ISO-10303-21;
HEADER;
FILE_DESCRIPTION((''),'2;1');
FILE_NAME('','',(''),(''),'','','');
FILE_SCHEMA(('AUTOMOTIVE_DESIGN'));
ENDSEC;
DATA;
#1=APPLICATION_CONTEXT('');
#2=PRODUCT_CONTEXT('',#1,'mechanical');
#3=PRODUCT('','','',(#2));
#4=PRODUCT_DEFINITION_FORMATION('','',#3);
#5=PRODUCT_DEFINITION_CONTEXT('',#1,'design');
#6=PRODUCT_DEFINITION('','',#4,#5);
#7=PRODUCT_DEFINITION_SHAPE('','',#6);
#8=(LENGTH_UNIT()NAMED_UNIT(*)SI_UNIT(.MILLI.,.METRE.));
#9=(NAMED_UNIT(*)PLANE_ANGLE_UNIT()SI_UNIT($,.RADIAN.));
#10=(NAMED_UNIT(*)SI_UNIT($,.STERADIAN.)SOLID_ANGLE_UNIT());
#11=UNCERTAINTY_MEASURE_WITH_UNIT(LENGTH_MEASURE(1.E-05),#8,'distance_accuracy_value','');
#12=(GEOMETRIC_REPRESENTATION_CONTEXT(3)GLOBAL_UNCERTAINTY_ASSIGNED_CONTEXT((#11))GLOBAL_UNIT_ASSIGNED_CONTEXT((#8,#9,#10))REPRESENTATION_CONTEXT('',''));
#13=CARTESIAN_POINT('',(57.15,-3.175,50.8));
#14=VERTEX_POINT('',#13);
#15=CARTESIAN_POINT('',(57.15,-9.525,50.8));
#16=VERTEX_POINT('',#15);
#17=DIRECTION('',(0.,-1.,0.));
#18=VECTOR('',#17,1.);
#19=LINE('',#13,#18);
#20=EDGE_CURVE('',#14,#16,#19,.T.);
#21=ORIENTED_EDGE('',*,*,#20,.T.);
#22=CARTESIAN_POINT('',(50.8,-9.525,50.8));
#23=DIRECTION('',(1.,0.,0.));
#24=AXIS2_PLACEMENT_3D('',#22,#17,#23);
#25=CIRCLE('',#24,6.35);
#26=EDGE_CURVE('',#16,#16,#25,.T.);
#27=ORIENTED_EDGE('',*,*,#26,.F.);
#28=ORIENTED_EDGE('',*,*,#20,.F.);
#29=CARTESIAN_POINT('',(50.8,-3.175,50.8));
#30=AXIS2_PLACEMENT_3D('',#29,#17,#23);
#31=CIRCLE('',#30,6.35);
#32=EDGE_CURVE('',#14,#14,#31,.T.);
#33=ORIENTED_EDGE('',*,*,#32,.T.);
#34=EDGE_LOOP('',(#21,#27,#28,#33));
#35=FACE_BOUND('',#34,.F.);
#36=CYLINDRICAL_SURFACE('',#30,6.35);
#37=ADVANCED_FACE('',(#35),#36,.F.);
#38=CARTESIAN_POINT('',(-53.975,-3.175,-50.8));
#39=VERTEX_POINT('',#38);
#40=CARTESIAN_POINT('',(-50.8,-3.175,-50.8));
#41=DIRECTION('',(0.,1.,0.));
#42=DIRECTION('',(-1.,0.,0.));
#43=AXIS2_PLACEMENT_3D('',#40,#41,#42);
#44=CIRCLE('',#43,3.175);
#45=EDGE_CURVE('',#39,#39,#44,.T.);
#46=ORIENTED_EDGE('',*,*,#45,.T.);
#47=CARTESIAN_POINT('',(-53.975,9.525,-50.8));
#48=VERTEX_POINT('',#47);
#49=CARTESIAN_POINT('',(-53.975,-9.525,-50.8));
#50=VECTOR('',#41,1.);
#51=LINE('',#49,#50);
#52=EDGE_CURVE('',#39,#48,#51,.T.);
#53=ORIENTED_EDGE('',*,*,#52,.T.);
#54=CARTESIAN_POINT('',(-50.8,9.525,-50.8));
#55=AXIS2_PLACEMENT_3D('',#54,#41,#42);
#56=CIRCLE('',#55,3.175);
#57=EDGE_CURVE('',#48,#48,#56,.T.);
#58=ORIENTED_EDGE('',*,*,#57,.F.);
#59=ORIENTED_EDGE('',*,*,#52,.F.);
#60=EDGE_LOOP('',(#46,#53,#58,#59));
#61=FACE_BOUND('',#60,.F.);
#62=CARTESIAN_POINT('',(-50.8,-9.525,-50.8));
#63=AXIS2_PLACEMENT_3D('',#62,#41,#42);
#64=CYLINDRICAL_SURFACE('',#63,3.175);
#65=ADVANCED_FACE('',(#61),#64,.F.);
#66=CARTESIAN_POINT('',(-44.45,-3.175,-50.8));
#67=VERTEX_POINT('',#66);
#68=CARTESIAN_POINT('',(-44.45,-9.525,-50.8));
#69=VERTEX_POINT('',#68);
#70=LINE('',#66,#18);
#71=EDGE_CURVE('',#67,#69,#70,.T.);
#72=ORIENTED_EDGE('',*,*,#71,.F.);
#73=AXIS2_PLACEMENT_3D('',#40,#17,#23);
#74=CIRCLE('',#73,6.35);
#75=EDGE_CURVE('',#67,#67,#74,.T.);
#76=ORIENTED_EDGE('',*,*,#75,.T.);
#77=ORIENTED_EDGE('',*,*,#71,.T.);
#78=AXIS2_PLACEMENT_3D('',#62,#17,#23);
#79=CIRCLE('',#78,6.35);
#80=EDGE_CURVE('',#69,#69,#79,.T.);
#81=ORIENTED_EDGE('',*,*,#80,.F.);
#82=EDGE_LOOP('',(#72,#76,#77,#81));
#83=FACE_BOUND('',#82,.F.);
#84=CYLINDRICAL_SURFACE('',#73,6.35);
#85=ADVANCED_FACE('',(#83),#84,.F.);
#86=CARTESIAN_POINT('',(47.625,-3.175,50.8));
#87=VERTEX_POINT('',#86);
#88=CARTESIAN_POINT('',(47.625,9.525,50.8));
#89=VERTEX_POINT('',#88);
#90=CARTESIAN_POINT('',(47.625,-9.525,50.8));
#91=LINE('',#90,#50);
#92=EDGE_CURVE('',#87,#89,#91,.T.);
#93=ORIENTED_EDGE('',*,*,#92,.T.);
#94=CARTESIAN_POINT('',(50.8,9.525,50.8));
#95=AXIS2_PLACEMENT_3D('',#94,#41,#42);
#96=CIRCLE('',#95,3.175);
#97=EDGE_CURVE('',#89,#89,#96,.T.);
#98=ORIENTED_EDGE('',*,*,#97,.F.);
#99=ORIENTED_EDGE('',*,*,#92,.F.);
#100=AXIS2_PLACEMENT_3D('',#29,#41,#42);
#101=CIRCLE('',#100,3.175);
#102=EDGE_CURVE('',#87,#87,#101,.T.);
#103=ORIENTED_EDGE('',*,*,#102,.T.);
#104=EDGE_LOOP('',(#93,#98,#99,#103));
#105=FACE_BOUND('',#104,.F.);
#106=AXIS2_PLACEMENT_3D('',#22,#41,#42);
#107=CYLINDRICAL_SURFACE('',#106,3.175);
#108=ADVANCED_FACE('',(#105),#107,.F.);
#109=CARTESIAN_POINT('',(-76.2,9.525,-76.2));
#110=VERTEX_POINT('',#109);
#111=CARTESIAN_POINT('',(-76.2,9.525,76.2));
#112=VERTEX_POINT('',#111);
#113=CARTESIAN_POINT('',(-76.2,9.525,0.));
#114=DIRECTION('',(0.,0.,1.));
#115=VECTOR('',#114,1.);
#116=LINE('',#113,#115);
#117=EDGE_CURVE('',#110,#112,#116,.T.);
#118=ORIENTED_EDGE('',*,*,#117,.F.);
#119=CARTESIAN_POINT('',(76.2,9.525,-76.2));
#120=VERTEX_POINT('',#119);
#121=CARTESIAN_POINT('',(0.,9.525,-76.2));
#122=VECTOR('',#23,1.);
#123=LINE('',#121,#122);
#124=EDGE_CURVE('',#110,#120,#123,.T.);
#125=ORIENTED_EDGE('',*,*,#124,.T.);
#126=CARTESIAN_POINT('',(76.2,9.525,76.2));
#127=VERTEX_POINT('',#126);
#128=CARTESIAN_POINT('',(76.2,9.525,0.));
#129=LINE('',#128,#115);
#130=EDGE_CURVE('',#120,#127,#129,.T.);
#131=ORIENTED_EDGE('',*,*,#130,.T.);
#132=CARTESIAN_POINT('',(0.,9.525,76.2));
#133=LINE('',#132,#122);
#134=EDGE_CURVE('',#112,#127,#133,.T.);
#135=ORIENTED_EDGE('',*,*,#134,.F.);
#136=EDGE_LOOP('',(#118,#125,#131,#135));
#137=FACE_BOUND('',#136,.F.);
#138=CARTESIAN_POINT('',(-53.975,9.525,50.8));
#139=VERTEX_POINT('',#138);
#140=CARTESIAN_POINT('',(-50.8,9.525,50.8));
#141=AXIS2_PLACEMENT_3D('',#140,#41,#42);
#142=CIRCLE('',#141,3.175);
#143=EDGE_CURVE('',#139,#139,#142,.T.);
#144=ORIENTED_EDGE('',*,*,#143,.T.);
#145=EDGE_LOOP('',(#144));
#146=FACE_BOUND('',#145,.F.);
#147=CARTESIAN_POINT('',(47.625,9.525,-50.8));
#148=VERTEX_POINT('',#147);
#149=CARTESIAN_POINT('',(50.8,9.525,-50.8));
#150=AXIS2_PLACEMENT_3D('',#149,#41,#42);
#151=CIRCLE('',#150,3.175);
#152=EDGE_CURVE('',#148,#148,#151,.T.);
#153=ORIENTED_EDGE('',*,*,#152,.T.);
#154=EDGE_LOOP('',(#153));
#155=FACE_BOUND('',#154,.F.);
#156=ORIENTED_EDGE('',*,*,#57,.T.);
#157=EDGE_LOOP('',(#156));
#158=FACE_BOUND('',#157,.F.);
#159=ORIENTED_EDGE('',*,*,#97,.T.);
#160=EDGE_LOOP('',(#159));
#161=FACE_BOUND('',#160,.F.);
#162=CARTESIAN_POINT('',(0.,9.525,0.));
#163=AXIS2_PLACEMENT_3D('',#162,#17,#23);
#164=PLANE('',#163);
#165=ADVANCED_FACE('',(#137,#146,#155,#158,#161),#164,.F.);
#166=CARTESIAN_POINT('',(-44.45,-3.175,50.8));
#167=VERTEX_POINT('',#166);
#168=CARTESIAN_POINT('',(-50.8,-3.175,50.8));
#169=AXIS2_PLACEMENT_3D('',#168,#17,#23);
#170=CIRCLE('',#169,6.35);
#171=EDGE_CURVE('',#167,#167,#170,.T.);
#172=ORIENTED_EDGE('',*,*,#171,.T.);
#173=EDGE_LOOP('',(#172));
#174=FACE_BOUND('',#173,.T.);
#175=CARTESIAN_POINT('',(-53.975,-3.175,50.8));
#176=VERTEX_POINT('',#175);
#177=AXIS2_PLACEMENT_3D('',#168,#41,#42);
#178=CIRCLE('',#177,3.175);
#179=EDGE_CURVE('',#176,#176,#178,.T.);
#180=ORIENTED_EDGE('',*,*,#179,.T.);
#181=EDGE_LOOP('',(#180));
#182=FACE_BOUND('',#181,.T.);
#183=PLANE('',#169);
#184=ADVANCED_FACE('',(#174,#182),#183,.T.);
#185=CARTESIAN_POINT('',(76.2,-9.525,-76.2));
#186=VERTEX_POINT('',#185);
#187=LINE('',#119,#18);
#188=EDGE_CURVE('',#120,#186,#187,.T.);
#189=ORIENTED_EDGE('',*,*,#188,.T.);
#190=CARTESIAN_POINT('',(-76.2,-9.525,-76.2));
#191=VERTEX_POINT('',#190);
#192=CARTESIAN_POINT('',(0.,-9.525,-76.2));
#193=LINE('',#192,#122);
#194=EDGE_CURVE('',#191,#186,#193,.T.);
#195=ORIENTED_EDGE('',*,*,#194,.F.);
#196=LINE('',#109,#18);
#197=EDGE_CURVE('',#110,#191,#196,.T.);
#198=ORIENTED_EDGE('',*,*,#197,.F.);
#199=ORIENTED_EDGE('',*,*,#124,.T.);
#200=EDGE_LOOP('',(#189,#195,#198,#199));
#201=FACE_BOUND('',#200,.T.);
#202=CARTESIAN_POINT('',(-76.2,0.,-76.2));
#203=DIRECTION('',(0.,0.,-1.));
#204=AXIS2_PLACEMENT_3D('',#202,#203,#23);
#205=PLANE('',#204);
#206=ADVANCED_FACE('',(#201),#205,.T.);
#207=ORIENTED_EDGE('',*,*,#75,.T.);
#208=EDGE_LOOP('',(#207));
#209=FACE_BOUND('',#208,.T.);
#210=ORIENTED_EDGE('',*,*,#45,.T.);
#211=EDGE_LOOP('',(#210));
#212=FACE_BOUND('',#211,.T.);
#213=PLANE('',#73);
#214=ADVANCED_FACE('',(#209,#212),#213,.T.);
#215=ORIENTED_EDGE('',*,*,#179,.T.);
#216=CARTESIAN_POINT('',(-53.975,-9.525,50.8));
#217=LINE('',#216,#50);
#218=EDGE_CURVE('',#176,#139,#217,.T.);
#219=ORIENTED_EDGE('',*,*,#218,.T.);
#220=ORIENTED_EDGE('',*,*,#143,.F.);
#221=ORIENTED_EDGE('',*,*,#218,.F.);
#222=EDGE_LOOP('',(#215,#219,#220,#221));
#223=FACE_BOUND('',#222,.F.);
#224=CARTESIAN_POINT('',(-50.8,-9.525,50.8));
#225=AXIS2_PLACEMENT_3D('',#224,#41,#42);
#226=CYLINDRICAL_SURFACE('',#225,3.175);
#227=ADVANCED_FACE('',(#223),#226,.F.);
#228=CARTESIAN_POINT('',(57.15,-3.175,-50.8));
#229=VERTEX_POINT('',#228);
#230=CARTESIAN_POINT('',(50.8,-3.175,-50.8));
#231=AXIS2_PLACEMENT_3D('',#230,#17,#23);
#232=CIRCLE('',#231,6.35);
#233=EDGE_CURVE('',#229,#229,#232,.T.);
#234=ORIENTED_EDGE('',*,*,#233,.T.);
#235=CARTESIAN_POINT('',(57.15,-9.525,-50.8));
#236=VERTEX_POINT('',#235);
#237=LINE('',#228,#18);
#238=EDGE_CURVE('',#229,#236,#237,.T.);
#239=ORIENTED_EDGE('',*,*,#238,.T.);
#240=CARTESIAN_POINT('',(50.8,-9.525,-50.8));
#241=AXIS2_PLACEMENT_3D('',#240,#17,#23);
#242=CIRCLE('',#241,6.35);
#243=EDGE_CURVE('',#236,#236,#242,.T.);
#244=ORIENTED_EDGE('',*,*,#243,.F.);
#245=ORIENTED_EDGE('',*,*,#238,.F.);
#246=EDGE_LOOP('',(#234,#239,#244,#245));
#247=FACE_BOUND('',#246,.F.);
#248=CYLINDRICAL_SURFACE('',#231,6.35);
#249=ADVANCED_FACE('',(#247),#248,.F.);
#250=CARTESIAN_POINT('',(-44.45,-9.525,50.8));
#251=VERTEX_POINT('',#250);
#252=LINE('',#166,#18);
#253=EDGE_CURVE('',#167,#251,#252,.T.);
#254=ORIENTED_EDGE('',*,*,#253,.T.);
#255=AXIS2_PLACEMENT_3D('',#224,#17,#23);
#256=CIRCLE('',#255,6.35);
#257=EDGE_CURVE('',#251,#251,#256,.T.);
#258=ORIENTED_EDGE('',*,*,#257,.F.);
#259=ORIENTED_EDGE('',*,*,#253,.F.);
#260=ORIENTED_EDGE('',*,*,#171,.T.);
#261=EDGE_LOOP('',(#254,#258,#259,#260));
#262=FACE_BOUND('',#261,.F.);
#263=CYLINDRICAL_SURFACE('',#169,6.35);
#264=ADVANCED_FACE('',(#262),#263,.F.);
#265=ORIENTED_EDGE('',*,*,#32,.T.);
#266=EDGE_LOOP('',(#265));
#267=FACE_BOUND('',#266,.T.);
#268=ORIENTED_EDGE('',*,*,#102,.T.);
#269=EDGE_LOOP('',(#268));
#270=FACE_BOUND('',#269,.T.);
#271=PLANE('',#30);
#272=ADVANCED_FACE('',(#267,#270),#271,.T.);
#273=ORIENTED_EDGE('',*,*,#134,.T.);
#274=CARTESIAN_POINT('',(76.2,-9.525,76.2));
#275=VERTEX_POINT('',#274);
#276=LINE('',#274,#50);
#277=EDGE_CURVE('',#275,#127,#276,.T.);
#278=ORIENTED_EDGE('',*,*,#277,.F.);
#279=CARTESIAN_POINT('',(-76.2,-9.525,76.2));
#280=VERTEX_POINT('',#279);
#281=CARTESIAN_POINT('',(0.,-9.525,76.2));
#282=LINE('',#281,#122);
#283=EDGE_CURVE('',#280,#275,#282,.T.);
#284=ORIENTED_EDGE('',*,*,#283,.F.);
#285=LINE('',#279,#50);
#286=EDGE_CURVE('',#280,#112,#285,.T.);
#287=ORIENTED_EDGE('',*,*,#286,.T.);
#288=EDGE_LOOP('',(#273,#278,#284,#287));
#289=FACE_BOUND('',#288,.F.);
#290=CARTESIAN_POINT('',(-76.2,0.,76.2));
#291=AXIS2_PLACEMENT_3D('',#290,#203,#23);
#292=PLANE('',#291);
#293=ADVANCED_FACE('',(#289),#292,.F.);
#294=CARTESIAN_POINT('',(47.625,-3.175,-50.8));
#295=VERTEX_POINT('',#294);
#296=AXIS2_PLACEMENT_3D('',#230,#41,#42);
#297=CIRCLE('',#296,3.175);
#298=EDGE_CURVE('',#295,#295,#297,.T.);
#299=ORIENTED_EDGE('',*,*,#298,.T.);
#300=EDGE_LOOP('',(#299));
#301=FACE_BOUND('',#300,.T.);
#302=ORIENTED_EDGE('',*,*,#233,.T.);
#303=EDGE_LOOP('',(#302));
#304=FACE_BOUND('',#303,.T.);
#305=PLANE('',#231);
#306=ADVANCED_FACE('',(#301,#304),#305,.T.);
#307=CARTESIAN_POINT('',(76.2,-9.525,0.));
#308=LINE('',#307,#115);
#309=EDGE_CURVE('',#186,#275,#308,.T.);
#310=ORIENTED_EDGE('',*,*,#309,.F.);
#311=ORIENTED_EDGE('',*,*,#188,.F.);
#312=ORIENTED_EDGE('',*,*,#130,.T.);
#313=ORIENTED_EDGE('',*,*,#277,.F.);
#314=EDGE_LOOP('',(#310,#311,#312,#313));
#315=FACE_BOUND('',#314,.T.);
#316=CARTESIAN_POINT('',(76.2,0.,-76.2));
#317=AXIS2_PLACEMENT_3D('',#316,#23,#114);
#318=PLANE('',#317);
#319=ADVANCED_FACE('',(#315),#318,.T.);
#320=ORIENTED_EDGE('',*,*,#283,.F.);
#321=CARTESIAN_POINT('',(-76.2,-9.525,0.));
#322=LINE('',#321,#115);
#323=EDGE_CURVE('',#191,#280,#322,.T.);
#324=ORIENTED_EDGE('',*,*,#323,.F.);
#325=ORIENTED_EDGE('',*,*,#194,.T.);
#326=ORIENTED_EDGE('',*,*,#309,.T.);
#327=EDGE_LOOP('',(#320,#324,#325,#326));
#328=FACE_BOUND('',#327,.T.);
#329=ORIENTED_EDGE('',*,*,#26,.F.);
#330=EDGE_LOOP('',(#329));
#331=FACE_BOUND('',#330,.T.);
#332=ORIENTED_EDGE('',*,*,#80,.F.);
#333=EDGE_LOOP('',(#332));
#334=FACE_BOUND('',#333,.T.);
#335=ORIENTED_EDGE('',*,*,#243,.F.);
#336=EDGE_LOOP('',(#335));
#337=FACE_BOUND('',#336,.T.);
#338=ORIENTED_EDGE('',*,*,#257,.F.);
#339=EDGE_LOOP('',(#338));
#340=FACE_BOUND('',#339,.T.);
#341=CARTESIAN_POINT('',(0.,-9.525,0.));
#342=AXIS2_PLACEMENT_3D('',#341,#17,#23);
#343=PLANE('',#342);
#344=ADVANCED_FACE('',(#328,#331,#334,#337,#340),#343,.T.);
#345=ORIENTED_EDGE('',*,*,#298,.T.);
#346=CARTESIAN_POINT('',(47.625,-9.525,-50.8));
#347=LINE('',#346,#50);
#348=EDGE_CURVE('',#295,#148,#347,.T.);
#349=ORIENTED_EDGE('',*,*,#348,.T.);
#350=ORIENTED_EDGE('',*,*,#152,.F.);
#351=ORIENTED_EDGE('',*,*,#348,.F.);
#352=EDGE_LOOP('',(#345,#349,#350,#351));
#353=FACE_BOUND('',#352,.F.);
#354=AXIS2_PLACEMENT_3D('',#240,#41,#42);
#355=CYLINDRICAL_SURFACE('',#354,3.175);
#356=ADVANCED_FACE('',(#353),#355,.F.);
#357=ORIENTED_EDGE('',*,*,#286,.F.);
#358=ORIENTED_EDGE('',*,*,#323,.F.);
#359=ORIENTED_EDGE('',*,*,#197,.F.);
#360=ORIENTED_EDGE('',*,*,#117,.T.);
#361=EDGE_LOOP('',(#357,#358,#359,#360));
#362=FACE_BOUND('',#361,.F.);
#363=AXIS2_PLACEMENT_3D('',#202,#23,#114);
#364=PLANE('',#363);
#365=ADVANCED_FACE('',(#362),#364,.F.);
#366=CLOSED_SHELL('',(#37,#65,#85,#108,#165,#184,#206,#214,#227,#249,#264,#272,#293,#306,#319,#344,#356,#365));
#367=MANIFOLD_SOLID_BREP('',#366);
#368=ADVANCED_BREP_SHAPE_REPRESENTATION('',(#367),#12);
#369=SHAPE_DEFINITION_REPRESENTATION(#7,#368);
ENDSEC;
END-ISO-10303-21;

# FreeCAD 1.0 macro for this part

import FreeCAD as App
import Part
import Sketcher

V = App.Vector
Q = App.Units.Quantity


def add_polygon(sketch, points):
    """Adds a closed chain of lines whose ends are joined by coincident constraints."""
    first, n = sketch.GeometryCount, len(points)
    for a, b in zip(points, points[1:] + points[:1]):
        sketch.addGeometry(Part.LineSegment(App.Vector(*a, 0), App.Vector(*b, 0)), False)
    for i in range(n):
        sketch.addConstraint(Sketcher.Constraint("Coincident", first + i, 2, first + (i + 1) % n, 1))

doc = App.newDocument("Part")
body = doc.addObject("PartDesign::Body", "Body")

sketch1 = body.newObject("Sketcher::SketchObject", "Sketch")
sketch1.AttachmentSupport = (doc.getObject("XZ_Plane"), [""])
sketch1.MapMode = "FlatFace"
add_polygon(sketch1, [(-76, 76), (-76, -76), (76, -76), (76, 76)])
sketch1.addConstraint([
    Sketcher.Constraint("Vertical", 0),
    Sketcher.Constraint("Horizontal", 1),
    Sketcher.Constraint("Vertical", 2),
    Sketcher.Constraint("Horizontal", 3),
    Sketcher.Constraint("Symmetric", 0, 2, 2, 2, -1, 1),
    Sketcher.Constraint("Equal", 3, 0),
    Sketcher.Constraint("DistanceX", 1, 1, 1, 2, Q("6 in")),
])
pad1 = body.newObject("PartDesign::Pad", "Pad")
pad1.Profile = sketch1
pad1.Length = Q("0.75 in")
pad1.Midplane = True

sketch2 = body.newObject("Sketcher::SketchObject", "Sketch001")
sketch2.AttachmentSupport = (doc.getObject("XZ_Plane"), [""])
sketch2.MapMode = "FlatFace"
sketch2.AttachmentOffset = App.Placement(V(0, 0, 0.375 * 25.4), App.Rotation())
sketch2.addGeometry([
    Part.Circle(V(-50.8, 50.8, 0), V(0, 0, 1), 3.2),
    Part.Circle(V(50.8, 50.8, 0), V(0, 0, 1), 3.2),
    Part.Circle(V(50.8, -50.8, 0), V(0, 0, 1), 3.2),
    Part.Circle(V(-50.8, -50.8, 0), V(0, 0, 1), 3.2),
], False)
sketch2.addConstraint([
    Sketcher.Constraint("Equal", 0, 1),
    Sketcher.Constraint("Equal", 1, 2),
    Sketcher.Constraint("Equal", 2, 3),
    Sketcher.Constraint("Symmetric", 0, 3, 2, 3, -1, 1),
    Sketcher.Constraint("Symmetric", 1, 3, 3, 3, -1, 1),
    Sketcher.Constraint("Symmetric", 0, 3, 1, 3, -2),
    Sketcher.Constraint("Diameter", 0, Q("0.25 in")),
    Sketcher.Constraint("DistanceX", 0, 3, -1, 1, Q("2 in")),
    Sketcher.Constraint("DistanceY", -1, 1, 0, 3, Q("2 in")),
])
doc.recompute()
hole = body.newObject("PartDesign::Hole", "Hole")
hole.Profile = sketch2
hole.ThreadType = "None"
hole.Diameter = Q("0.25 in")
hole.DepthType = "ThroughAll"
hole.HoleCutType = "Counterbore"
hole.HoleCutDiameter = Q("0.5 in")
hole.HoleCutDepth = Q("0.25 in")

doc.recompute()
